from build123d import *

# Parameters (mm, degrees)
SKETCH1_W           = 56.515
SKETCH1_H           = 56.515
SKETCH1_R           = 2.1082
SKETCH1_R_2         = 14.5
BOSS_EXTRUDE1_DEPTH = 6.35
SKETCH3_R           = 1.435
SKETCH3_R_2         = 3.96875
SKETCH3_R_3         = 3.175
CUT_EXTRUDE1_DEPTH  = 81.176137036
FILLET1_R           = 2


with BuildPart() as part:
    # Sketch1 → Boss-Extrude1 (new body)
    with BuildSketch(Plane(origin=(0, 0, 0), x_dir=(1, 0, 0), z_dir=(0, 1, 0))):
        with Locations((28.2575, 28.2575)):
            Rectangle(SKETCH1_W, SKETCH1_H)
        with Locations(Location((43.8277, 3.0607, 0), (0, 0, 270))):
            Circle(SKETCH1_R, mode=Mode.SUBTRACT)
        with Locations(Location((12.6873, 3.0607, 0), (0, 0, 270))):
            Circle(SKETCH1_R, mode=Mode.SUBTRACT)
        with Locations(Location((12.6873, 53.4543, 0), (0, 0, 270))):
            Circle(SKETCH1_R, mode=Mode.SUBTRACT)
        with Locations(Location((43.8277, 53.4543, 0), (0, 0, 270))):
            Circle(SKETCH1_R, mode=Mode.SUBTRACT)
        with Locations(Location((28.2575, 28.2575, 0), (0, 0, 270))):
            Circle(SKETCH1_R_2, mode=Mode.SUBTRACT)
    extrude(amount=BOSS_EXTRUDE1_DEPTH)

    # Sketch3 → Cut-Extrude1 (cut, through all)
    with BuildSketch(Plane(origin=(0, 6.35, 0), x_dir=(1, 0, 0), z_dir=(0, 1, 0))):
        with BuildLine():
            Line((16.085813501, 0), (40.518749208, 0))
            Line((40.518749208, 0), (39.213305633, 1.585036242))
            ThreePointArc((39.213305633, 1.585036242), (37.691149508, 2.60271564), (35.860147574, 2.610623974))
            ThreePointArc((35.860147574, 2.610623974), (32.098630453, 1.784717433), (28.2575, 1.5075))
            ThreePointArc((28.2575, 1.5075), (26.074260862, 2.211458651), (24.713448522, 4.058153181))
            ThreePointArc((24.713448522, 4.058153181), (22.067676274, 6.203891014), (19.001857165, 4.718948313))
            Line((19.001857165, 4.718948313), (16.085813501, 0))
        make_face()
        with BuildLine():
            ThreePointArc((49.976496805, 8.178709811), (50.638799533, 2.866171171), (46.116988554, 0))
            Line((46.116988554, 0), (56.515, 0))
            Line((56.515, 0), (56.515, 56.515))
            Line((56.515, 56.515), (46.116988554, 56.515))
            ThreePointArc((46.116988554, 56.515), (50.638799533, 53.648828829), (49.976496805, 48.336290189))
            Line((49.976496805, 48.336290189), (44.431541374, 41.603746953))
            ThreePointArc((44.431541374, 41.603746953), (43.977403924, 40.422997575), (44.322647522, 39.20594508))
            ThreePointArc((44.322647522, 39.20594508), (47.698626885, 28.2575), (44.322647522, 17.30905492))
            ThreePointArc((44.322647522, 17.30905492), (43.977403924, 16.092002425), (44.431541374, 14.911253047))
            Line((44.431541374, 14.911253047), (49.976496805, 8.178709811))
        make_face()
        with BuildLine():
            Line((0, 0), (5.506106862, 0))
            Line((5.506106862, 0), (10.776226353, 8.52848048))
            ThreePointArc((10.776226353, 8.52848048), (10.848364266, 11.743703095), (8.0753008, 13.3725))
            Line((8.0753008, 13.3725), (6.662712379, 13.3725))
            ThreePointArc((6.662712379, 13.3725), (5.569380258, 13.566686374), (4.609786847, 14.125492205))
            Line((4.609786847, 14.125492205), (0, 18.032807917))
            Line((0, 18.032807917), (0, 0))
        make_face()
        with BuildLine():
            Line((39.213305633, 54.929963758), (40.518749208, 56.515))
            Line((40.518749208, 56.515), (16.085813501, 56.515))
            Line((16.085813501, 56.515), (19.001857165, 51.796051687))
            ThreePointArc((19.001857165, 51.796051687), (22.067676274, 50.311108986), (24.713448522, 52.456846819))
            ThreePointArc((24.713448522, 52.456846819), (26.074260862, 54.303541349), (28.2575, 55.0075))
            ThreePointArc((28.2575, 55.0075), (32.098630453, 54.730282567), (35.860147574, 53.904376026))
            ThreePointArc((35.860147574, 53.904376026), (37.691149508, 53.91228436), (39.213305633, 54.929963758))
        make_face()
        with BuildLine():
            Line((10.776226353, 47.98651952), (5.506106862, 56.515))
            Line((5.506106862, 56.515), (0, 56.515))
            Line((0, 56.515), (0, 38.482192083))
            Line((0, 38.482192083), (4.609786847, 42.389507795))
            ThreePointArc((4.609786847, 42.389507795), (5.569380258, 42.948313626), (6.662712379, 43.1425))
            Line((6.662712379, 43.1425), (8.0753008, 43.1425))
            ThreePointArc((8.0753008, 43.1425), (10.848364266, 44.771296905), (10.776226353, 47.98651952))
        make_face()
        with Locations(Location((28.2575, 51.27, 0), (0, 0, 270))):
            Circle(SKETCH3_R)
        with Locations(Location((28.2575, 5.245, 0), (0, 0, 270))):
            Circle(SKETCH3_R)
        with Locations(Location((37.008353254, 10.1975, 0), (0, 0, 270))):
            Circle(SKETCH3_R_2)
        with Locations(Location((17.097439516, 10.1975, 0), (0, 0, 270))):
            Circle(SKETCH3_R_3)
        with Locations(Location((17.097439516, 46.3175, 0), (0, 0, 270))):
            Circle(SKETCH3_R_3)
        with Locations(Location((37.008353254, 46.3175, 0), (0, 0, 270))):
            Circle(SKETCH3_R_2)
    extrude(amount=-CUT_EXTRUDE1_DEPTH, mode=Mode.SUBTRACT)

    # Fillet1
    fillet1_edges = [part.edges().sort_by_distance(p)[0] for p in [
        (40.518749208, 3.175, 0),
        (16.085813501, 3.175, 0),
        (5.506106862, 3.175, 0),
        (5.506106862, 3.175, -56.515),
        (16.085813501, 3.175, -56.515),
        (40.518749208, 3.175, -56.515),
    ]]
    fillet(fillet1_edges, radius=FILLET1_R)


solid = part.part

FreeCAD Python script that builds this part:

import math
import FreeCAD as App
import Part
import Sketcher

V = App.Vector
Q = App.Units.Quantity


def edges_at(feature, points):
    """Names of the edges that pass closest to the given points."""
    edges = feature.Shape.Edges
    near = lambda p: min(range(len(edges)), key=lambda i: edges[i].distToShape(Part.Vertex(*p))[0])
    return sorted({f"Edge{near(p) + 1}" for p in points})


def add_polygon(sketch, points):
    """Adds a closed chain of lines whose ends are joined by coincident constraints."""
    first, n = sketch.GeometryCount, len(points)
    for a, b in zip(points, points[1:] + points[:1]):
        sketch.addGeometry(Part.LineSegment(App.Vector(*a, 0), App.Vector(*b, 0)), False)
    for i in range(n):
        sketch.addConstraint(Sketcher.Constraint("Coincident", first + i, 2, first + (i + 1) % n, 1))

doc = App.newDocument("Part")
body = doc.addObject("PartDesign::Body", "Body")

# Sketch on XZ plane
sketch1 = doc.addObject("Sketcher::SketchObject", "Sketch")
body.addObject(sketch1)
sketch1.AttachmentSupport = (doc.XZ_Plane, [""])
sketch1.MapMode = "FlatFace"
add_polygon(sketch1, [(0, -56.5), (0, 0), (56.5, 0), (56.5, -56.5)])  # lines 0-3
sketch1.addGeometry(Part.Circle(V(12.7, -3.1, 0), V(0, 0, 1), 2.1), False)  # 4
sketch1.addGeometry(Part.Circle(V(43.8, -3.1, 0), V(0, 0, 1), 2.1), False)  # 5
sketch1.addGeometry(Part.Circle(V(12.7, -53.5, 0), V(0, 0, 1), 2.1), False)  # 6
sketch1.addGeometry(Part.Circle(V(28.3, -28.3, 0), V(0, 0, 1), 14.5), False)  # 7
sketch1.addGeometry(Part.Circle(V(43.8, -53.5, 0), V(0, 0, 1), 2.1), False)  # 8
sketch1.addConstraint(Sketcher.Constraint("Vertical", 0))
sketch1.addConstraint(Sketcher.Constraint("Horizontal", 1))
sketch1.addConstraint(Sketcher.Constraint("Vertical", 2))
sketch1.addConstraint(Sketcher.Constraint("Horizontal", 3))
sketch1.addConstraint(Sketcher.Constraint("Coincident", 0, 2, -1, 1))
sketch1.addConstraint(Sketcher.Constraint("Equal", 4, 5))
sketch1.addConstraint(Sketcher.Constraint("Equal", 5, 6))
sketch1.addConstraint(Sketcher.Constraint("Equal", 6, 8))
sketch1.addConstraint(Sketcher.Constraint("Horizontal", 4, 3, 5, 3))
sketch1.addConstraint(Sketcher.Constraint("Horizontal", 6, 3, 8, 3))
sketch1.addConstraint(Sketcher.Constraint("Vertical", 4, 3, 6, 3))
sketch1.addConstraint(Sketcher.Constraint("Vertical", 5, 3, 8, 3))
sketch1.addConstraint(Sketcher.Constraint("Equal", 3, 0))
sketch1.addConstraint(Sketcher.Constraint("Diameter", 7, Q("29 mm")))
sketch1.addConstraint(Sketcher.Constraint("Diameter", 4, Q("4.2164 mm")))
sketch1.addConstraint(Sketcher.Constraint("DistanceX", 1, 1, 1, 2, Q("56.515 mm")))
sketch1.addConstraint(Sketcher.Constraint("DistanceX", -1, 1, 4, 3, Q("12.6873 mm")))
sketch1.addConstraint(Sketcher.Constraint("DistanceY", 4, 3, -1, 1, Q("3.0607 mm")))
sketch1.addConstraint(Sketcher.Constraint("DistanceX", -1, 1, 5, 3, Q("43.8277 mm")))
sketch1.addConstraint(Sketcher.Constraint("DistanceY", 6, 3, -1, 1, Q("53.4543 mm")))
sketch1.addConstraint(Sketcher.Constraint("DistanceX", -1, 1, 7, 3, Q("28.2575 mm")))
sketch1.addConstraint(Sketcher.Constraint("DistanceY", 7, 3, -1, 1, Q("28.2575 mm")))
pad1 = doc.addObject("PartDesign::Pad", "Pad")
body.addObject(pad1)
pad1.Profile = sketch1
pad1.Length = 6.35
pad1.Reversed = True

# Sketch on XZ plane
sketch2 = doc.addObject("Sketcher::SketchObject", "Sketch001")
body.addObject(sketch2)
sketch2.AttachmentSupport = (doc.XZ_Plane, [""])
sketch2.MapMode = "FlatFace"
sketch2.AttachmentOffset = App.Placement(V(0, 0, -6.35), App.Rotation())
sketch2.addGeometry(Part.LineSegment(V(16.1, 0, 0), V(40.5, 0, 0)), False)
sketch2.addGeometry(Part.LineSegment(V(40.5, 0, 0), V(39.2, -1.6, 0)), False)
sketch2.addGeometry(Part.ArcOfCircle(Part.Circle(V(36.8, 0.4, 0), V(0, 0, 1), 3.2), math.radians(-107), math.radians(-39)), False)
sketch2.addGeometry(Part.ArcOfCircle(Part.Circle(V(28.3, -28.3, 0), V(0, 0, 1), 26.8), math.radians(73.49), math.radians(90)), False)
sketch2.addGeometry(Part.ArcOfCircle(Part.Circle(V(28.3, -5.2, 0), V(0, 0, 1), 3.7), math.radians(90), math.radians(161)), False)
sketch2.addGeometry(Part.ArcOfCircle(Part.Circle(V(21.7, -3, 0), V(0, 0, 1), 3.2), math.radians(-148), math.radians(-19)), False)
sketch2.addGeometry(Part.LineSegment(V(19, -4.7, 0), V(16.1, 0, 0)), False)
sketch2.addGeometry(Part.ArcOfCircle(Part.Circle(V(46.1, -5, 0), V(0, 0, 1), 5), math.radians(-39), math.radians(90)), False)
sketch2.addGeometry(Part.LineSegment(V(46.1, 0, 0), V(56.5, 0, 0)), False)
sketch2.addGeometry(Part.LineSegment(V(56.5, 0, 0), V(56.5, -56.5, 0)), False)
sketch2.addGeometry(Part.LineSegment(V(56.5, -56.5, 0), V(46.1, -56.5, 0)), False)
sketch2.addGeometry(Part.ArcOfCircle(Part.Circle(V(46.1, -51.5, 0), V(0, 0, 1), 5), math.radians(-90), math.radians(39)), False)
sketch2.addGeometry(Part.LineSegment(V(50, -48.3, 0), V(44.4, -41.6, 0)), False)
sketch2.addGeometry(Part.ArcOfCircle(Part.Circle(V(46, -40.3, 0), V(0, 0, 1), 2), math.radians(146), math.radians(219)), False)
sketch2.addGeometry(Part.ArcOfCircle(Part.Circle(V(28.3, -28.3, 0), V(0, 0, 1), 19.4), math.radians(-34), math.radians(34)), False)
sketch2.addGeometry(Part.ArcOfCircle(Part.Circle(V(46, -16.2, 0), V(0, 0, 1), 2), math.radians(141), math.radians(214)), False)
sketch2.addGeometry(Part.LineSegment(V(44.4, -14.9, 0), V(50, -8.2, 0)), False)
sketch2.addGeometry(Part.LineSegment(V(0, 0, 0), V(5.5, 0, 0)), False)
sketch2.addGeometry(Part.LineSegment(V(5.5, 0, 0), V(10.8, -8.5, 0)), False)
sketch2.addGeometry(Part.ArcOfCircle(Part.Circle(V(8.1, -10.2, 0), V(0, 0, 1), 3.2), math.radians(-90), math.radians(32)), False)
sketch2.addGeometry(Part.LineSegment(V(8.1, -13.4, 0), V(6.7, -13.4, 0)), False)
sketch2.addGeometry(Part.ArcOfCircle(Part.Circle(V(6.7, -16.5, 0), V(0, 0, 1), 3.2), math.radians(90), math.radians(130)), False)
sketch2.addGeometry(Part.LineSegment(V(4.6, -14.1, 0), V(0, -18, 0)), False)
sketch2.addGeometry(Part.LineSegment(V(0, -18, 0), V(0, 0, 0)), False)
sketch2.addGeometry(Part.LineSegment(V(39.2, -54.9, 0), V(40.5, -56.5, 0)), False)
sketch2.addGeometry(Part.LineSegment(V(40.5, -56.5, 0), V(16.1, -56.5, 0)), False)
sketch2.addGeometry(Part.LineSegment(V(16.1, -56.5, 0), V(19, -51.8, 0)), False)
sketch2.addGeometry(Part.ArcOfCircle(Part.Circle(V(21.7, -53.5, 0), V(0, 0, 1), 3.2), math.radians(19), math.radians(148)), False)
sketch2.addGeometry(Part.ArcOfCircle(Part.Circle(V(28.3, -51.3, 0), V(0, 0, 1), 3.7), math.radians(-161), math.radians(-90)), False)
sketch2.addGeometry(Part.ArcOfCircle(Part.Circle(V(28.3, -28.3, 0), V(0, 0, 1), 26.8), math.radians(-90), math.radians(-73.49)), False)
sketch2.addGeometry(Part.ArcOfCircle(Part.Circle(V(36.8, -56.9, 0), V(0, 0, 1), 3.2), math.radians(39), math.radians(107)), False)
sketch2.addGeometry(Part.LineSegment(V(10.8, -48, 0), V(5.5, -56.5, 0)), False)
sketch2.addGeometry(Part.LineSegment(V(5.5, -56.5, 0), V(0, -56.5, 0)), False)
sketch2.addGeometry(Part.LineSegment(V(0, -56.5, 0), V(0, -38.5, 0)), False)
sketch2.addGeometry(Part.LineSegment(V(0, -38.5, 0), V(4.6, -42.4, 0)), False)
sketch2.addGeometry(Part.ArcOfCircle(Part.Circle(V(6.7, -40, 0), V(0, 0, 1), 3.2), math.radians(-130), math.radians(-90)), False)
sketch2.addGeometry(Part.LineSegment(V(6.7, -43.1, 0), V(8.1, -43.1, 0)), False)
sketch2.addGeometry(Part.ArcOfCircle(Part.Circle(V(8.1, -46.3, 0), V(0, 0, 1), 3.2), math.radians(-32), math.radians(90)), False)
sketch2.addGeometry(Part.Circle(V(28.3, -51.3, 0), V(0, 0, 1), 1.4), False)
sketch2.addGeometry(Part.Circle(V(28.3, -5.2, 0), V(0, 0, 1), 1.4), False)
sketch2.addGeometry(Part.Circle(V(37, -10.2, 0), V(0, 0, 1), 4), False)
sketch2.addGeometry(Part.Circle(V(17.1, -10.2, 0), V(0, 0, 1), 3.2), False)
sketch2.addGeometry(Part.Circle(V(17.1, -46.3, 0), V(0, 0, 1), 3.2), False)
sketch2.addGeometry(Part.Circle(V(37, -46.3, 0), V(0, 0, 1), 4), False)
sketch2.addConstraint(Sketcher.Constraint("Coincident", 0, 2, 1, 1))
sketch2.addConstraint(Sketcher.Constraint("Tangent", 1, 2, 2, 2))
sketch2.addConstraint(Sketcher.Constraint("Tangent", 2, 1, 3, 1))
sketch2.addConstraint(Sketcher.Constraint("Tangent", 3, 2, 4, 1))
sketch2.addConstraint(Sketcher.Constraint("Tangent", 4, 2, 5, 2))
sketch2.addConstraint(Sketcher.Constraint("Tangent", 5, 1, 6, 1))
sketch2.addConstraint(Sketcher.Constraint("Coincident", 6, 2, 0, 1))
sketch2.addConstraint(Sketcher.Constraint("Tangent", 7, 2, 8, 1))
sketch2.addConstraint(Sketcher.Constraint("Coincident", 8, 2, 9, 1))
sketch2.addConstraint(Sketcher.Constraint("Coincident", 9, 2, 10, 1))
sketch2.addConstraint(Sketcher.Constraint("Tangent", 10, 2, 11, 1))
sketch2.addConstraint(Sketcher.Constraint("Tangent", 11, 2, 12, 1))
sketch2.addConstraint(Sketcher.Constraint("Tangent", 12, 2, 13, 2))
sketch2.addConstraint(Sketcher.Constraint("Tangent", 13, 1, 14, 1))
sketch2.addConstraint(Sketcher.Constraint("Tangent", 14, 2, 15, 2))
sketch2.addConstraint(Sketcher.Constraint("Tangent", 15, 1, 16, 1))
sketch2.addConstraint(Sketcher.Constraint("Tangent", 16, 2, 7, 1))
sketch2.addConstraint(Sketcher.Constraint("Coincident", 17, 2, 18, 1))
sketch2.addConstraint(Sketcher.Constraint("Tangent", 18, 2, 19, 2))
sketch2.addConstraint(Sketcher.Constraint("Tangent", 19, 1, 20, 1))
sketch2.addConstraint(Sketcher.Constraint("Tangent", 20, 2, 21, 1))
sketch2.addConstraint(Sketcher.Constraint("Tangent", 21, 2, 22, 1))
sketch2.addConstraint(Sketcher.Constraint("Coincident", 22, 2, 23, 1))
sketch2.addConstraint(Sketcher.Constraint("Coincident", 23, 2, 17, 1))
sketch2.addConstraint(Sketcher.Constraint("Coincident", 24, 2, 25, 1))
sketch2.addConstraint(Sketcher.Constraint("Coincident", 25, 2, 26, 1))
sketch2.addConstraint(Sketcher.Constraint("Tangent", 26, 2, 27, 2))
sketch2.addConstraint(Sketcher.Constraint("Tangent", 27, 1, 28, 1))
sketch2.addConstraint(Sketcher.Constraint("Tangent", 28, 2, 29, 1))
sketch2.addConstraint(Sketcher.Constraint("Tangent", 29, 2, 30, 2))
sketch2.addConstraint(Sketcher.Constraint("Tangent", 30, 1, 24, 1))
sketch2.addConstraint(Sketcher.Constraint("Coincident", 31, 2, 32, 1))
sketch2.addConstraint(Sketcher.Constraint("Coincident", 32, 2, 33, 1))
sketch2.addConstraint(Sketcher.Constraint("Coincident", 33, 2, 34, 1))
sketch2.addConstraint(Sketcher.Constraint("Tangent", 34, 2, 35, 1))
sketch2.addConstraint(Sketcher.Constraint("Tangent", 35, 2, 36, 1))
sketch2.addConstraint(Sketcher.Constraint("Tangent", 36, 2, 37, 2))
sketch2.addConstraint(Sketcher.Constraint("Tangent", 37, 1, 31, 1))
sketch2.addConstraint(Sketcher.Constraint("Horizontal", 0))
sketch2.addConstraint(Sketcher.Constraint("Horizontal", 8))
sketch2.addConstraint(Sketcher.Constraint("Vertical", 9))
sketch2.addConstraint(Sketcher.Constraint("Horizontal", 10))
sketch2.addConstraint(Sketcher.Constraint("Horizontal", 17))
sketch2.addConstraint(Sketcher.Constraint("Horizontal", 20))
sketch2.addConstraint(Sketcher.Constraint("Vertical", 23))
sketch2.addConstraint(Sketcher.Constraint("Horizontal", 25))
sketch2.addConstraint(Sketcher.Constraint("Horizontal", 32))
sketch2.addConstraint(Sketcher.Constraint("Vertical", 33))
sketch2.addConstraint(Sketcher.Constraint("Horizontal", 36))
sketch2.addConstraint(Sketcher.Constraint("Coincident", 23, 2, -1, 1))
sketch2.addConstraint(Sketcher.Constraint("Coincident", 14, 3, 3, 3))
sketch2.addConstraint(Sketcher.Constraint("Coincident", 29, 3, 3, 3))
sketch2.addConstraint(Sketcher.Constraint("Coincident", 38, 3, 28, 3))
sketch2.addConstraint(Sketcher.Constraint("Coincident", 39, 3, 4, 3))
sketch2.addConstraint(Sketcher.Constraint("Equal", 2, 5))
sketch2.addConstraint(Sketcher.Constraint("Equal", 7, 11))
sketch2.addConstraint(Sketcher.Constraint("Equal", 13, 15))
sketch2.addConstraint(Sketcher.Constraint("Equal", 5, 19))
sketch2.addConstraint(Sketcher.Constraint("Equal", 19, 21))
sketch2.addConstraint(Sketcher.Constraint("Equal", 21, 27))
sketch2.addConstraint(Sketcher.Constraint("Equal", 4, 28))
sketch2.addConstraint(Sketcher.Constraint("Equal", 3, 29))
sketch2.addConstraint(Sketcher.Constraint("Equal", 27, 30))
sketch2.addConstraint(Sketcher.Constraint("Equal", 30, 35))
sketch2.addConstraint(Sketcher.Constraint("Equal", 35, 37))
sketch2.addConstraint(Sketcher.Constraint("Equal", 38, 39))
sketch2.addConstraint(Sketcher.Constraint("Equal", 37, 41))
sketch2.addConstraint(Sketcher.Constraint("Equal", 41, 42))
sketch2.addConstraint(Sketcher.Constraint("Equal", 40, 43))
sketch2.addConstraint(Sketcher.Constraint("PointOnObject", 0, 2, -1))
sketch2.addConstraint(Sketcher.Constraint("PointOnObject", 7, 2, -1))
sketch2.addConstraint(Sketcher.Constraint("PointOnObject", 32, 2, -2))
sketch2.addConstraint(Sketcher.Constraint("Parallel", 1, 16))
sketch2.addConstraint(Sketcher.Constraint("Parallel", 6, 18))
sketch2.addConstraint(Sketcher.Constraint("Parallel", 12, 24))
sketch2.addConstraint(Sketcher.Constraint("Parallel", 26, 31))
sketch2.addConstraint(Sketcher.Constraint("Horizontal", 19, 3, 40, 3))
sketch2.addConstraint(Sketcher.Constraint("Horizontal", 40, 3, 41, 3))
sketch2.addConstraint(Sketcher.Constraint("Horizontal", 37, 3, 42, 3))
sketch2.addConstraint(Sketcher.Constraint("Horizontal", 42, 3, 43, 3))
sketch2.addConstraint(Sketcher.Constraint("Horizontal", 10, 2, 24, 2))
sketch2.addConstraint(Sketcher.Constraint("Horizontal", 25, 2, 31, 2))
sketch2.addConstraint(Sketcher.Constraint("Vertical", 3, 3, 4, 3))
sketch2.addConstraint(Sketcher.Constraint("Vertical", 7, 3, 11, 3))
sketch2.addConstraint(Sketcher.Constraint("Vertical", 13, 3, 15, 3))
sketch2.addConstraint(Sketcher.Constraint("Vertical", 5, 3, 27, 3))
sketch2.addConstraint(Sketcher.Constraint("Vertical", 14, 3, 28, 3))
sketch2.addConstraint(Sketcher.Constraint("Vertical", 2, 3, 30, 3))
sketch2.addConstraint(Sketcher.Constraint("Vertical", 21, 3, 35, 3))
sketch2.addConstraint(Sketcher.Constraint("Vertical", 19, 3, 37, 3))
sketch2.addConstraint(Sketcher.Constraint("Vertical", 41, 3, 42, 3))
sketch2.addConstraint(Sketcher.Constraint("Vertical", 40, 3, 43, 3))
sketch2.addConstraint(Sketcher.Constraint("Vertical", 12, 2, 15, 1))
sketch2.addConstraint(Sketcher.Constraint("Vertical", 6, 2, 25, 2))
sketch2.addConstraint(Sketcher.Constraint("Vertical", 17, 2, 31, 2))
sketch2.addConstraint(Sketcher.Constraint("Vertical", 21, 2, 34, 2))
sketch2.addConstraint(Sketcher.Constraint("Radius", 7, Q("5 mm")))
sketch2.addConstraint(Sketcher.Constraint("Radius", 13, Q("2 mm")))
sketch2.addConstraint(Sketcher.Constraint("Diameter", 38, Q("2.87 mm")))
sketch2.addConstraint(Sketcher.Constraint("Diameter", 41, Q("6.35 mm")))
sketch2.addConstraint(Sketcher.Constraint("Radius", 3, Q("26.75 mm")))
sketch2.addConstraint(Sketcher.Constraint("Diameter", 40, Q("7.9375 mm")))
sketch2.addConstraint(Sketcher.Constraint("Radius", 4, Q("3.7375 mm")))
sketch2.addConstraint(Sketcher.Constraint("DistanceY", 9, 2, 9, 1, Q("56.515 mm")))
sketch2.addConstraint(Sketcher.Constraint("DistanceX", -1, 1, 8, 2, Q("56.515 mm")))
sketch2.addConstraint(Sketcher.Constraint("Radius", 14, Q("19.441127 mm")))
sketch2.addConstraint(Sketcher.Constraint("DistanceX", 8, 1, 8, 2, Q("10.398011 mm")))
sketch2.addConstraint(Sketcher.Constraint("DistanceX", 20, 2, 20, 1, Q("1.412588 mm")))
sketch2.addConstraint(Sketcher.Constraint("DistanceX", -1, 1, 3, 3, Q("28.2575 mm")))
sketch2.addConstraint(Sketcher.Constraint("DistanceX", -1, 1, 19, 3, Q("8.075301 mm")))
sketch2.addConstraint(Sketcher.Constraint("DistanceY", 19, 3, -1, 1, Q("10.1975 mm")))
sketch2.addConstraint(Sketcher.Constraint("Distance", 22, Q("6.042951 mm")))
sketch2.addConstraint(Sketcher.Constraint("DistanceX", 0, 1, 0, 2, Q("24.432936 mm")))
sketch2.addConstraint(Sketcher.Constraint("DistanceX", 17, 1, 17, 2, Q("5.506107 mm")))
sketch2.addConstraint(Sketcher.Constraint("DistanceY", 5, 3, -1, 1, Q("3.049929 mm")))
sketch2.addConstraint(Sketcher.Constraint("DistanceX", -1, 1, 41, 3, Q("17.09744 mm")))
sketch2.addConstraint(Sketcher.Constraint("DistanceY", 11, 2, -1, 1, Q("48.33629 mm")))
sketch2.addConstraint(Sketcher.Constraint("DistanceX", -1, 1, 40, 3, Q("37.008353 mm")))
pocket1 = doc.addObject("PartDesign::Pocket", "Pocket")
body.addObject(pocket1)
pocket1.Profile = sketch2
pocket1.Type = "ThroughAll"
pocket1.Reversed = True
doc.recompute()

fillet = doc.addObject("PartDesign::Fillet", "Fillet")
body.addObject(fillet)
fillet.Base = (pocket1, edges_at(pocket1, [
    (40.519, 3.175, 0),
    (16.086, 3.175, 0),
    (5.506, 3.175, 0),
    (5.506, 3.175, -56.515),
    (16.086, 3.175, -56.515),
    (40.519, 3.175, -56.515),
]))
fillet.Radius = 2

doc.recompute()
